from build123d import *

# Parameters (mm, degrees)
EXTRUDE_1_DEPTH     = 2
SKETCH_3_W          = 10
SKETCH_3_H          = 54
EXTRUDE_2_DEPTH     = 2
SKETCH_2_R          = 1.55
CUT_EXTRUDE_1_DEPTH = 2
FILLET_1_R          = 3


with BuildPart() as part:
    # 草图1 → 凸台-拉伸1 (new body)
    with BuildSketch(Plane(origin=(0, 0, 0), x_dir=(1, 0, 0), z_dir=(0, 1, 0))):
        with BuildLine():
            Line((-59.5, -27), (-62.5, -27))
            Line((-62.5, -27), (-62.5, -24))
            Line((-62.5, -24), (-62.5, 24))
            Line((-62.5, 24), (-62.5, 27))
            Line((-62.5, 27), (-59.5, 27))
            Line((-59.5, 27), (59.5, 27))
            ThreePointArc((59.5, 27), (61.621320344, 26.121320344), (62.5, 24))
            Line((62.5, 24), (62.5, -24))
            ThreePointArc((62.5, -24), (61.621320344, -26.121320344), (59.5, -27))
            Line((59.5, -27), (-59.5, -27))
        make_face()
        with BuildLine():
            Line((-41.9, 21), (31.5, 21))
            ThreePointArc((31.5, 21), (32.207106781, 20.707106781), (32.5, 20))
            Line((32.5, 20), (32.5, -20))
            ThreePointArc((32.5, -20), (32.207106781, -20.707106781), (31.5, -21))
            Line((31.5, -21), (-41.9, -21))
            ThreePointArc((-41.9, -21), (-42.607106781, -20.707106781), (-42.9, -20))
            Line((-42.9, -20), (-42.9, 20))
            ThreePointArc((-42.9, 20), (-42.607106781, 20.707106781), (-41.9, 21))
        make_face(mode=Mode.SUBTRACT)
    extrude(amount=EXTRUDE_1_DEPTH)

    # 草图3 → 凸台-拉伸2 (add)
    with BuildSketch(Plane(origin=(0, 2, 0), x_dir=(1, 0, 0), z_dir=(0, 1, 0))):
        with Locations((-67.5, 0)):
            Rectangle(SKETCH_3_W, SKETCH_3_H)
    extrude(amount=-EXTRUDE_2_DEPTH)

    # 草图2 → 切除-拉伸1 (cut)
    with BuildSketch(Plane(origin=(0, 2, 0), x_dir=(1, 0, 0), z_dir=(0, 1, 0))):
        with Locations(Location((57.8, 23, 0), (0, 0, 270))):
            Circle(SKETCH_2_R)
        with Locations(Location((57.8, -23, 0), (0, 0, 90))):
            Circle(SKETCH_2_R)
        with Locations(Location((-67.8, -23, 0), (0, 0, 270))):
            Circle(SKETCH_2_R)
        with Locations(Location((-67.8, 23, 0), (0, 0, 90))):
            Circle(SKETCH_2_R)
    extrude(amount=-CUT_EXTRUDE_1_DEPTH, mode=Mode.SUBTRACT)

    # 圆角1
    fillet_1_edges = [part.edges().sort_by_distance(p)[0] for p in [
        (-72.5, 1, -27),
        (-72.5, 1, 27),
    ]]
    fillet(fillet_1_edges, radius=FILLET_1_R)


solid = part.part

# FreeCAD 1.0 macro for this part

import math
import FreeCAD as App
import Part
import Sketcher

V = App.Vector
Q = App.Units.Quantity


def edges_at(feature, points):
    """Names of the edges that pass closest to the given points."""
    edges = feature.Shape.Edges
    near = lambda p: min(range(len(edges)), key=lambda i: edges[i].distToShape(Part.Vertex(*p))[0])
    return sorted({f"Edge{near(p) + 1}" for p in points})


def add_polygon(sketch, points):
    """Adds a closed chain of lines whose ends are joined by coincident constraints."""
    first, n = sketch.GeometryCount, len(points)
    for a, b in zip(points, points[1:] + points[:1]):
        sketch.addGeometry(Part.LineSegment(App.Vector(*a, 0), App.Vector(*b, 0)), False)
    for i in range(n):
        sketch.addConstraint(Sketcher.Constraint("Coincident", first + i, 2, first + (i + 1) % n, 1))

doc = App.newDocument("Part")
body = doc.addObject("PartDesign::Body", "Body")

sketch1 = body.newObject("Sketcher::SketchObject", "Sketch")
sketch1.AttachmentSupport = (doc.getObject("XZ_Plane"), [""])
sketch1.MapMode = "FlatFace"
sketch1.addGeometry([
    Part.LineSegment(V(-62.5, -27, 0), V(-62.5, 27, 0)),
    Part.LineSegment(V(-62.5, 27, 0), V(59.5, 27, 0)),
    Part.ArcOfCircle(Part.Circle(V(59.5, 24, 0), V(0, 0, 1), 3), math.radians(0), math.radians(90)),
    Part.LineSegment(V(62.5, 24, 0), V(62.5, -24, 0)),
    Part.ArcOfCircle(Part.Circle(V(59.5, -24, 0), V(0, 0, 1), 3), math.radians(-90), math.radians(0)),
    Part.LineSegment(V(59.5, -27, 0), V(-62.5, -27, 0)),
    Part.LineSegment(V(-41.9, -21, 0), V(31.5, -21, 0)),
    Part.ArcOfCircle(Part.Circle(V(31.5, -20, 0), V(0, 0, 1), 1), math.radians(-90), math.radians(0)),
    Part.LineSegment(V(32.5, -20, 0), V(32.5, 20, 0)),
    Part.ArcOfCircle(Part.Circle(V(31.5, 20, 0), V(0, 0, 1), 1), math.radians(0), math.radians(90)),
    Part.LineSegment(V(31.5, 21, 0), V(-41.9, 21, 0)),
    Part.ArcOfCircle(Part.Circle(V(-41.9, 20, 0), V(0, 0, 1), 1), math.radians(90), math.radians(180)),
    Part.LineSegment(V(-42.9, 20, 0), V(-42.9, -20, 0)),
    Part.ArcOfCircle(Part.Circle(V(-41.9, -20, 0), V(0, 0, 1), 1), math.radians(-180), math.radians(-90)),
], False)
sketch1.addConstraint([
    Sketcher.Constraint("Coincident", 0, 2, 1, 1),
    Sketcher.Constraint("Tangent", 1, 2, 2, 2),
    Sketcher.Constraint("Tangent", 2, 1, 3, 1),
    Sketcher.Constraint("Tangent", 3, 2, 4, 2),
    Sketcher.Constraint("Tangent", 4, 1, 5, 1),
    Sketcher.Constraint("Coincident", 5, 2, 0, 1),
    Sketcher.Constraint("Tangent", 6, 2, 7, 1),
    Sketcher.Constraint("Tangent", 7, 2, 8, 1),
    Sketcher.Constraint("Tangent", 8, 2, 9, 1),
    Sketcher.Constraint("Tangent", 9, 2, 10, 1),
    Sketcher.Constraint("Tangent", 10, 2, 11, 1),
    Sketcher.Constraint("Tangent", 11, 2, 12, 1),
    Sketcher.Constraint("Tangent", 12, 2, 13, 1),
    Sketcher.Constraint("Tangent", 13, 2, 6, 1),
    Sketcher.Constraint("Vertical", 0),
    Sketcher.Constraint("Horizontal", 1),
    Sketcher.Constraint("Vertical", 3),
    Sketcher.Constraint("Horizontal", 5),
    Sketcher.Constraint("Horizontal", 6),
    Sketcher.Constraint("Vertical", 8),
    Sketcher.Constraint("Horizontal", 10),
    Sketcher.Constraint("Vertical", 12),
    Sketcher.Constraint("Equal", 2, 4),
    Sketcher.Constraint("Equal", 7, 9),
    Sketcher.Constraint("Equal", 9, 11),
    Sketcher.Constraint("Equal", 11, 13),
    Sketcher.Constraint("Radius", 2, Q("3 mm")),
    Sketcher.Constraint("Radius", 7, Q("1 mm")),
    Sketcher.Constraint("DistanceX", 1, 1, 1, 2, Q("122 mm")),
    Sketcher.Constraint("DistanceY", 0, 1, 0, 2, Q("54 mm")),
    Sketcher.Constraint("DistanceY", 8, 1, 8, 2, Q("40 mm")),
    Sketcher.Constraint("DistanceX", 6, 1, 6, 2, Q("73.4 mm")),
    Sketcher.Constraint("DistanceY", -1, 1, 2, 3, Q("24 mm")),
    Sketcher.Constraint("DistanceY", 7, 3, -1, 1, Q("20 mm")),
    Sketcher.Constraint("DistanceX", 7, 3, 4, 3, Q("28 mm")),
    Sketcher.Constraint("DistanceX", -1, 1, 2, 3, Q("59.5 mm")),
])
pad1 = body.newObject("PartDesign::Pad", "Pad")
pad1.Profile = sketch1
pad1.Length = 2
pad1.Reversed = True

sketch2 = body.newObject("Sketcher::SketchObject", "Sketch001")
sketch2.AttachmentSupport = (doc.getObject("XZ_Plane"), [""])
sketch2.MapMode = "FlatFace"
sketch2.AttachmentOffset = App.Placement(V(0, 0, -2), App.Rotation())
add_polygon(sketch2, [(-72.5, -27), (-72.5, 27), (-62.5, 27), (-62.5, -27)])
sketch2.addConstraint([
    Sketcher.Constraint("Vertical", 0),
    Sketcher.Constraint("Horizontal", 1),
    Sketcher.Constraint("Vertical", 2),
    Sketcher.Constraint("Horizontal", 3),
    Sketcher.Constraint("DistanceX", 1, 1, 1, 2, Q("10 mm")),
    Sketcher.Constraint("DistanceY", 0, 1, 0, 2, Q("54 mm")),
    Sketcher.Constraint("DistanceY", -1, 1, 0, 2, Q("27 mm")),
    Sketcher.Constraint("DistanceX", 0, 2, -1, 1, Q("72.5 mm")),
])
pad2 = body.newObject("PartDesign::Pad", "Pad001")
pad2.Profile = sketch2
pad2.Length = 2

sketch3 = body.newObject("Sketcher::SketchObject", "Sketch002")
sketch3.AttachmentSupport = (doc.getObject("XZ_Plane"), [""])
sketch3.MapMode = "FlatFace"
sketch3.AttachmentOffset = App.Placement(V(0, 0, -2), App.Rotation())
sketch3.addGeometry([
    Part.Circle(V(57.8, -23, 0), V(0, 0, 1), 1.55),
    Part.Circle(V(57.8, 23, 0), V(0, 0, 1), 1.55),
    Part.Circle(V(-67.8, 23, 0), V(0, 0, 1), 1.55),
    Part.Circle(V(-67.8, -23, 0), V(0, 0, 1), 1.55),
], False)
sketch3.addConstraint([
    Sketcher.Constraint("Equal", 0, 1),
    Sketcher.Constraint("Equal", 1, 2),
    Sketcher.Constraint("Equal", 2, 3),
    Sketcher.Constraint("Symmetric", 0, 3, 1, 3, -1),
    Sketcher.Constraint("Symmetric", 2, 3, 3, 3, -1),
    Sketcher.Constraint("Horizontal", 1, 3, 2, 3),
    Sketcher.Constraint("Diameter", 0, Q("3.1 mm")),
    Sketcher.Constraint("DistanceY", 0, 3, -1, 1, Q("23 mm")),
    Sketcher.Constraint("DistanceX", -1, 1, 0, 3, Q("57.8 mm")),
    Sketcher.Constraint("DistanceX", 2, 3, -1, 1, Q("67.8 mm")),
])
pocket1 = body.newObject("PartDesign::Pocket", "Pocket")
pocket1.Profile = sketch3
pocket1.Length = 2
pocket1.Reversed = True
doc.recompute()

fillet = body.newObject("PartDesign::Fillet", "Fillet")
fillet.Base = (pocket1, edges_at(pocket1, [(-72.5, 1, -27), (-72.5, 1, 27)]))
fillet.Radius = 3

doc.recompute()
